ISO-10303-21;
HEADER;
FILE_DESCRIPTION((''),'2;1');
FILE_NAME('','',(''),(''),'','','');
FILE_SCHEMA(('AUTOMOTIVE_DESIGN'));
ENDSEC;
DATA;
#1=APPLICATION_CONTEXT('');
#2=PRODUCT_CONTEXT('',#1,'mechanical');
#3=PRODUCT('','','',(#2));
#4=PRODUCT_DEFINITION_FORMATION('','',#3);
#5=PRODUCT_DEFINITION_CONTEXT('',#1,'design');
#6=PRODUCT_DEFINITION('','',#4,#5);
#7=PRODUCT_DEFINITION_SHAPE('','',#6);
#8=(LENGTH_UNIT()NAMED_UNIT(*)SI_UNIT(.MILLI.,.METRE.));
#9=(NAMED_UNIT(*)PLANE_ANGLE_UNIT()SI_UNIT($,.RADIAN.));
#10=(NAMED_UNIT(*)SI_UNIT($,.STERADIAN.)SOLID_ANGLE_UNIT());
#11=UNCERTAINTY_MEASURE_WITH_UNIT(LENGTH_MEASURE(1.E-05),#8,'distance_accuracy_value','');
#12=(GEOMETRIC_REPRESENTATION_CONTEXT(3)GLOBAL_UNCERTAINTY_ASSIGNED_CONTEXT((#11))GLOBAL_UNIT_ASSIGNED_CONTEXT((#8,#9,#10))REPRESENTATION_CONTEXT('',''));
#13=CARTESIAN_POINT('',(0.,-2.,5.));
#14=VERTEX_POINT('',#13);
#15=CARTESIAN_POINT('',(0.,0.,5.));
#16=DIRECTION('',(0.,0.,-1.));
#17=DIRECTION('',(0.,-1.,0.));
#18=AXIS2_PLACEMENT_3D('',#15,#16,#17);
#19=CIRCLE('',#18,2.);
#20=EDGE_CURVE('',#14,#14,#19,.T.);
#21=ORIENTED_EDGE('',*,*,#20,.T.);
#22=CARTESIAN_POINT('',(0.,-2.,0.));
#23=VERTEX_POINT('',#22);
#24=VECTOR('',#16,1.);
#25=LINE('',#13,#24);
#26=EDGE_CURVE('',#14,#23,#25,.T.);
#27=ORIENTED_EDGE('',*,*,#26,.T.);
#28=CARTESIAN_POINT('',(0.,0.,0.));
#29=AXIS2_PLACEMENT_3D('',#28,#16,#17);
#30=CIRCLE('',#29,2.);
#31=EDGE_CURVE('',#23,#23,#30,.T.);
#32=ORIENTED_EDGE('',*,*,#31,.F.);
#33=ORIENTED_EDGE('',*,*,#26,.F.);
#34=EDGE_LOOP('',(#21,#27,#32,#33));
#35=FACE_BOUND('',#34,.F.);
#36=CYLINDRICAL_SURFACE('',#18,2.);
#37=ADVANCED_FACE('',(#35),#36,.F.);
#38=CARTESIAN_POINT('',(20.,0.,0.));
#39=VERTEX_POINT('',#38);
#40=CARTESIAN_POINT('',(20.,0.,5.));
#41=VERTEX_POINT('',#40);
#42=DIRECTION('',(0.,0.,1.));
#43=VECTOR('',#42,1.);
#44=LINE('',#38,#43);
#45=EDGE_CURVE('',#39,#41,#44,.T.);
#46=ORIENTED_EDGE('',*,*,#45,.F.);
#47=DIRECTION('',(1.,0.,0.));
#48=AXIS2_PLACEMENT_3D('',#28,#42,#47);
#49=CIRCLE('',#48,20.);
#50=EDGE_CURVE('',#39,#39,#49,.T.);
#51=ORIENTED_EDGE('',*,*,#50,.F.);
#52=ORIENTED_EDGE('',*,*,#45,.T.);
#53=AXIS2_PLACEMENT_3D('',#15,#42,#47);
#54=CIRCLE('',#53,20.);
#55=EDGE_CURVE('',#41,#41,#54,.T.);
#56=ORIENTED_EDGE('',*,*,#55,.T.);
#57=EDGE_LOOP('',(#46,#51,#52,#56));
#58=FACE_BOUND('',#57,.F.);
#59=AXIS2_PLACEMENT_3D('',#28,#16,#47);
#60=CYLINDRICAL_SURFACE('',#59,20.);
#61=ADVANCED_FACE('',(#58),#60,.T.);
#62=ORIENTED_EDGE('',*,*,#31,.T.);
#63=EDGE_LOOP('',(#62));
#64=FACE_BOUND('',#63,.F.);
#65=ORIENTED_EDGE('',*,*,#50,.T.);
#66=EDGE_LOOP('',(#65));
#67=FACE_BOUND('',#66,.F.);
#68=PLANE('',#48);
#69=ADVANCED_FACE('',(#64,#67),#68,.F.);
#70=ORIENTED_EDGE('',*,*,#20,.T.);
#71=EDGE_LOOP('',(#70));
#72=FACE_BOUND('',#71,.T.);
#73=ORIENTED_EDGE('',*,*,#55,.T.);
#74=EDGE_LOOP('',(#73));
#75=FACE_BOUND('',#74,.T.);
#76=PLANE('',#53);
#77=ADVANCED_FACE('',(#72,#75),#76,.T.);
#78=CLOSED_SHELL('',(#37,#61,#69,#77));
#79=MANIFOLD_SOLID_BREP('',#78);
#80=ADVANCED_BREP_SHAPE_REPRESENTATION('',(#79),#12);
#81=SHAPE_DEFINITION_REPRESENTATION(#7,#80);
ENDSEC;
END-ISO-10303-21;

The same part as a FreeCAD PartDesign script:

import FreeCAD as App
import Part
import Sketcher
Q = App.Units.Quantity

doc = App.newDocument("Part")
body = doc.addObject("PartDesign::Body", "Body")

sketch1 = body.newObject("Sketcher::SketchObject", "Sketch")
sketch1.AttachmentSupport = (doc.getObject("XY_Plane"), [""])
sketch1.MapMode = "FlatFace"
sketch1.addGeometry(Part.Circle(App.Vector(0, 0, 0), App.Vector(0, 0, 1), 20), False)
sketch1.addConstraint([
    Sketcher.Constraint("Coincident", 0, 3, -1, 1),
    Sketcher.Constraint("Diameter", 0, Q("40 mm")),
])
pad1 = body.newObject("PartDesign::Pad", "Pad")
pad1.Profile = sketch1
pad1.Length = 5

sketch2 = body.newObject("Sketcher::SketchObject", "Sketch001")
sketch2.AttachmentSupport = (doc.getObject("XY_Plane"), [""])
sketch2.MapMode = "FlatFace"
sketch2.AttachmentOffset = App.Placement(App.Vector(0, 0, 5), App.Rotation())
sketch2.addGeometry(Part.Circle(App.Vector(0, 0, 0), App.Vector(0, 0, 1), 2), False)
sketch2.addConstraint([
    Sketcher.Constraint("Coincident", 0, 3, -1, 1),
    Sketcher.Constraint("Diameter", 0, Q("4 mm")),
])
doc.recompute()
hole = body.newObject("PartDesign::Hole", "Hole")
hole.Profile = sketch2
hole.ThreadType = "None"
hole.Diameter = 4
hole.DepthType = "ThroughAll"

doc.recompute()
